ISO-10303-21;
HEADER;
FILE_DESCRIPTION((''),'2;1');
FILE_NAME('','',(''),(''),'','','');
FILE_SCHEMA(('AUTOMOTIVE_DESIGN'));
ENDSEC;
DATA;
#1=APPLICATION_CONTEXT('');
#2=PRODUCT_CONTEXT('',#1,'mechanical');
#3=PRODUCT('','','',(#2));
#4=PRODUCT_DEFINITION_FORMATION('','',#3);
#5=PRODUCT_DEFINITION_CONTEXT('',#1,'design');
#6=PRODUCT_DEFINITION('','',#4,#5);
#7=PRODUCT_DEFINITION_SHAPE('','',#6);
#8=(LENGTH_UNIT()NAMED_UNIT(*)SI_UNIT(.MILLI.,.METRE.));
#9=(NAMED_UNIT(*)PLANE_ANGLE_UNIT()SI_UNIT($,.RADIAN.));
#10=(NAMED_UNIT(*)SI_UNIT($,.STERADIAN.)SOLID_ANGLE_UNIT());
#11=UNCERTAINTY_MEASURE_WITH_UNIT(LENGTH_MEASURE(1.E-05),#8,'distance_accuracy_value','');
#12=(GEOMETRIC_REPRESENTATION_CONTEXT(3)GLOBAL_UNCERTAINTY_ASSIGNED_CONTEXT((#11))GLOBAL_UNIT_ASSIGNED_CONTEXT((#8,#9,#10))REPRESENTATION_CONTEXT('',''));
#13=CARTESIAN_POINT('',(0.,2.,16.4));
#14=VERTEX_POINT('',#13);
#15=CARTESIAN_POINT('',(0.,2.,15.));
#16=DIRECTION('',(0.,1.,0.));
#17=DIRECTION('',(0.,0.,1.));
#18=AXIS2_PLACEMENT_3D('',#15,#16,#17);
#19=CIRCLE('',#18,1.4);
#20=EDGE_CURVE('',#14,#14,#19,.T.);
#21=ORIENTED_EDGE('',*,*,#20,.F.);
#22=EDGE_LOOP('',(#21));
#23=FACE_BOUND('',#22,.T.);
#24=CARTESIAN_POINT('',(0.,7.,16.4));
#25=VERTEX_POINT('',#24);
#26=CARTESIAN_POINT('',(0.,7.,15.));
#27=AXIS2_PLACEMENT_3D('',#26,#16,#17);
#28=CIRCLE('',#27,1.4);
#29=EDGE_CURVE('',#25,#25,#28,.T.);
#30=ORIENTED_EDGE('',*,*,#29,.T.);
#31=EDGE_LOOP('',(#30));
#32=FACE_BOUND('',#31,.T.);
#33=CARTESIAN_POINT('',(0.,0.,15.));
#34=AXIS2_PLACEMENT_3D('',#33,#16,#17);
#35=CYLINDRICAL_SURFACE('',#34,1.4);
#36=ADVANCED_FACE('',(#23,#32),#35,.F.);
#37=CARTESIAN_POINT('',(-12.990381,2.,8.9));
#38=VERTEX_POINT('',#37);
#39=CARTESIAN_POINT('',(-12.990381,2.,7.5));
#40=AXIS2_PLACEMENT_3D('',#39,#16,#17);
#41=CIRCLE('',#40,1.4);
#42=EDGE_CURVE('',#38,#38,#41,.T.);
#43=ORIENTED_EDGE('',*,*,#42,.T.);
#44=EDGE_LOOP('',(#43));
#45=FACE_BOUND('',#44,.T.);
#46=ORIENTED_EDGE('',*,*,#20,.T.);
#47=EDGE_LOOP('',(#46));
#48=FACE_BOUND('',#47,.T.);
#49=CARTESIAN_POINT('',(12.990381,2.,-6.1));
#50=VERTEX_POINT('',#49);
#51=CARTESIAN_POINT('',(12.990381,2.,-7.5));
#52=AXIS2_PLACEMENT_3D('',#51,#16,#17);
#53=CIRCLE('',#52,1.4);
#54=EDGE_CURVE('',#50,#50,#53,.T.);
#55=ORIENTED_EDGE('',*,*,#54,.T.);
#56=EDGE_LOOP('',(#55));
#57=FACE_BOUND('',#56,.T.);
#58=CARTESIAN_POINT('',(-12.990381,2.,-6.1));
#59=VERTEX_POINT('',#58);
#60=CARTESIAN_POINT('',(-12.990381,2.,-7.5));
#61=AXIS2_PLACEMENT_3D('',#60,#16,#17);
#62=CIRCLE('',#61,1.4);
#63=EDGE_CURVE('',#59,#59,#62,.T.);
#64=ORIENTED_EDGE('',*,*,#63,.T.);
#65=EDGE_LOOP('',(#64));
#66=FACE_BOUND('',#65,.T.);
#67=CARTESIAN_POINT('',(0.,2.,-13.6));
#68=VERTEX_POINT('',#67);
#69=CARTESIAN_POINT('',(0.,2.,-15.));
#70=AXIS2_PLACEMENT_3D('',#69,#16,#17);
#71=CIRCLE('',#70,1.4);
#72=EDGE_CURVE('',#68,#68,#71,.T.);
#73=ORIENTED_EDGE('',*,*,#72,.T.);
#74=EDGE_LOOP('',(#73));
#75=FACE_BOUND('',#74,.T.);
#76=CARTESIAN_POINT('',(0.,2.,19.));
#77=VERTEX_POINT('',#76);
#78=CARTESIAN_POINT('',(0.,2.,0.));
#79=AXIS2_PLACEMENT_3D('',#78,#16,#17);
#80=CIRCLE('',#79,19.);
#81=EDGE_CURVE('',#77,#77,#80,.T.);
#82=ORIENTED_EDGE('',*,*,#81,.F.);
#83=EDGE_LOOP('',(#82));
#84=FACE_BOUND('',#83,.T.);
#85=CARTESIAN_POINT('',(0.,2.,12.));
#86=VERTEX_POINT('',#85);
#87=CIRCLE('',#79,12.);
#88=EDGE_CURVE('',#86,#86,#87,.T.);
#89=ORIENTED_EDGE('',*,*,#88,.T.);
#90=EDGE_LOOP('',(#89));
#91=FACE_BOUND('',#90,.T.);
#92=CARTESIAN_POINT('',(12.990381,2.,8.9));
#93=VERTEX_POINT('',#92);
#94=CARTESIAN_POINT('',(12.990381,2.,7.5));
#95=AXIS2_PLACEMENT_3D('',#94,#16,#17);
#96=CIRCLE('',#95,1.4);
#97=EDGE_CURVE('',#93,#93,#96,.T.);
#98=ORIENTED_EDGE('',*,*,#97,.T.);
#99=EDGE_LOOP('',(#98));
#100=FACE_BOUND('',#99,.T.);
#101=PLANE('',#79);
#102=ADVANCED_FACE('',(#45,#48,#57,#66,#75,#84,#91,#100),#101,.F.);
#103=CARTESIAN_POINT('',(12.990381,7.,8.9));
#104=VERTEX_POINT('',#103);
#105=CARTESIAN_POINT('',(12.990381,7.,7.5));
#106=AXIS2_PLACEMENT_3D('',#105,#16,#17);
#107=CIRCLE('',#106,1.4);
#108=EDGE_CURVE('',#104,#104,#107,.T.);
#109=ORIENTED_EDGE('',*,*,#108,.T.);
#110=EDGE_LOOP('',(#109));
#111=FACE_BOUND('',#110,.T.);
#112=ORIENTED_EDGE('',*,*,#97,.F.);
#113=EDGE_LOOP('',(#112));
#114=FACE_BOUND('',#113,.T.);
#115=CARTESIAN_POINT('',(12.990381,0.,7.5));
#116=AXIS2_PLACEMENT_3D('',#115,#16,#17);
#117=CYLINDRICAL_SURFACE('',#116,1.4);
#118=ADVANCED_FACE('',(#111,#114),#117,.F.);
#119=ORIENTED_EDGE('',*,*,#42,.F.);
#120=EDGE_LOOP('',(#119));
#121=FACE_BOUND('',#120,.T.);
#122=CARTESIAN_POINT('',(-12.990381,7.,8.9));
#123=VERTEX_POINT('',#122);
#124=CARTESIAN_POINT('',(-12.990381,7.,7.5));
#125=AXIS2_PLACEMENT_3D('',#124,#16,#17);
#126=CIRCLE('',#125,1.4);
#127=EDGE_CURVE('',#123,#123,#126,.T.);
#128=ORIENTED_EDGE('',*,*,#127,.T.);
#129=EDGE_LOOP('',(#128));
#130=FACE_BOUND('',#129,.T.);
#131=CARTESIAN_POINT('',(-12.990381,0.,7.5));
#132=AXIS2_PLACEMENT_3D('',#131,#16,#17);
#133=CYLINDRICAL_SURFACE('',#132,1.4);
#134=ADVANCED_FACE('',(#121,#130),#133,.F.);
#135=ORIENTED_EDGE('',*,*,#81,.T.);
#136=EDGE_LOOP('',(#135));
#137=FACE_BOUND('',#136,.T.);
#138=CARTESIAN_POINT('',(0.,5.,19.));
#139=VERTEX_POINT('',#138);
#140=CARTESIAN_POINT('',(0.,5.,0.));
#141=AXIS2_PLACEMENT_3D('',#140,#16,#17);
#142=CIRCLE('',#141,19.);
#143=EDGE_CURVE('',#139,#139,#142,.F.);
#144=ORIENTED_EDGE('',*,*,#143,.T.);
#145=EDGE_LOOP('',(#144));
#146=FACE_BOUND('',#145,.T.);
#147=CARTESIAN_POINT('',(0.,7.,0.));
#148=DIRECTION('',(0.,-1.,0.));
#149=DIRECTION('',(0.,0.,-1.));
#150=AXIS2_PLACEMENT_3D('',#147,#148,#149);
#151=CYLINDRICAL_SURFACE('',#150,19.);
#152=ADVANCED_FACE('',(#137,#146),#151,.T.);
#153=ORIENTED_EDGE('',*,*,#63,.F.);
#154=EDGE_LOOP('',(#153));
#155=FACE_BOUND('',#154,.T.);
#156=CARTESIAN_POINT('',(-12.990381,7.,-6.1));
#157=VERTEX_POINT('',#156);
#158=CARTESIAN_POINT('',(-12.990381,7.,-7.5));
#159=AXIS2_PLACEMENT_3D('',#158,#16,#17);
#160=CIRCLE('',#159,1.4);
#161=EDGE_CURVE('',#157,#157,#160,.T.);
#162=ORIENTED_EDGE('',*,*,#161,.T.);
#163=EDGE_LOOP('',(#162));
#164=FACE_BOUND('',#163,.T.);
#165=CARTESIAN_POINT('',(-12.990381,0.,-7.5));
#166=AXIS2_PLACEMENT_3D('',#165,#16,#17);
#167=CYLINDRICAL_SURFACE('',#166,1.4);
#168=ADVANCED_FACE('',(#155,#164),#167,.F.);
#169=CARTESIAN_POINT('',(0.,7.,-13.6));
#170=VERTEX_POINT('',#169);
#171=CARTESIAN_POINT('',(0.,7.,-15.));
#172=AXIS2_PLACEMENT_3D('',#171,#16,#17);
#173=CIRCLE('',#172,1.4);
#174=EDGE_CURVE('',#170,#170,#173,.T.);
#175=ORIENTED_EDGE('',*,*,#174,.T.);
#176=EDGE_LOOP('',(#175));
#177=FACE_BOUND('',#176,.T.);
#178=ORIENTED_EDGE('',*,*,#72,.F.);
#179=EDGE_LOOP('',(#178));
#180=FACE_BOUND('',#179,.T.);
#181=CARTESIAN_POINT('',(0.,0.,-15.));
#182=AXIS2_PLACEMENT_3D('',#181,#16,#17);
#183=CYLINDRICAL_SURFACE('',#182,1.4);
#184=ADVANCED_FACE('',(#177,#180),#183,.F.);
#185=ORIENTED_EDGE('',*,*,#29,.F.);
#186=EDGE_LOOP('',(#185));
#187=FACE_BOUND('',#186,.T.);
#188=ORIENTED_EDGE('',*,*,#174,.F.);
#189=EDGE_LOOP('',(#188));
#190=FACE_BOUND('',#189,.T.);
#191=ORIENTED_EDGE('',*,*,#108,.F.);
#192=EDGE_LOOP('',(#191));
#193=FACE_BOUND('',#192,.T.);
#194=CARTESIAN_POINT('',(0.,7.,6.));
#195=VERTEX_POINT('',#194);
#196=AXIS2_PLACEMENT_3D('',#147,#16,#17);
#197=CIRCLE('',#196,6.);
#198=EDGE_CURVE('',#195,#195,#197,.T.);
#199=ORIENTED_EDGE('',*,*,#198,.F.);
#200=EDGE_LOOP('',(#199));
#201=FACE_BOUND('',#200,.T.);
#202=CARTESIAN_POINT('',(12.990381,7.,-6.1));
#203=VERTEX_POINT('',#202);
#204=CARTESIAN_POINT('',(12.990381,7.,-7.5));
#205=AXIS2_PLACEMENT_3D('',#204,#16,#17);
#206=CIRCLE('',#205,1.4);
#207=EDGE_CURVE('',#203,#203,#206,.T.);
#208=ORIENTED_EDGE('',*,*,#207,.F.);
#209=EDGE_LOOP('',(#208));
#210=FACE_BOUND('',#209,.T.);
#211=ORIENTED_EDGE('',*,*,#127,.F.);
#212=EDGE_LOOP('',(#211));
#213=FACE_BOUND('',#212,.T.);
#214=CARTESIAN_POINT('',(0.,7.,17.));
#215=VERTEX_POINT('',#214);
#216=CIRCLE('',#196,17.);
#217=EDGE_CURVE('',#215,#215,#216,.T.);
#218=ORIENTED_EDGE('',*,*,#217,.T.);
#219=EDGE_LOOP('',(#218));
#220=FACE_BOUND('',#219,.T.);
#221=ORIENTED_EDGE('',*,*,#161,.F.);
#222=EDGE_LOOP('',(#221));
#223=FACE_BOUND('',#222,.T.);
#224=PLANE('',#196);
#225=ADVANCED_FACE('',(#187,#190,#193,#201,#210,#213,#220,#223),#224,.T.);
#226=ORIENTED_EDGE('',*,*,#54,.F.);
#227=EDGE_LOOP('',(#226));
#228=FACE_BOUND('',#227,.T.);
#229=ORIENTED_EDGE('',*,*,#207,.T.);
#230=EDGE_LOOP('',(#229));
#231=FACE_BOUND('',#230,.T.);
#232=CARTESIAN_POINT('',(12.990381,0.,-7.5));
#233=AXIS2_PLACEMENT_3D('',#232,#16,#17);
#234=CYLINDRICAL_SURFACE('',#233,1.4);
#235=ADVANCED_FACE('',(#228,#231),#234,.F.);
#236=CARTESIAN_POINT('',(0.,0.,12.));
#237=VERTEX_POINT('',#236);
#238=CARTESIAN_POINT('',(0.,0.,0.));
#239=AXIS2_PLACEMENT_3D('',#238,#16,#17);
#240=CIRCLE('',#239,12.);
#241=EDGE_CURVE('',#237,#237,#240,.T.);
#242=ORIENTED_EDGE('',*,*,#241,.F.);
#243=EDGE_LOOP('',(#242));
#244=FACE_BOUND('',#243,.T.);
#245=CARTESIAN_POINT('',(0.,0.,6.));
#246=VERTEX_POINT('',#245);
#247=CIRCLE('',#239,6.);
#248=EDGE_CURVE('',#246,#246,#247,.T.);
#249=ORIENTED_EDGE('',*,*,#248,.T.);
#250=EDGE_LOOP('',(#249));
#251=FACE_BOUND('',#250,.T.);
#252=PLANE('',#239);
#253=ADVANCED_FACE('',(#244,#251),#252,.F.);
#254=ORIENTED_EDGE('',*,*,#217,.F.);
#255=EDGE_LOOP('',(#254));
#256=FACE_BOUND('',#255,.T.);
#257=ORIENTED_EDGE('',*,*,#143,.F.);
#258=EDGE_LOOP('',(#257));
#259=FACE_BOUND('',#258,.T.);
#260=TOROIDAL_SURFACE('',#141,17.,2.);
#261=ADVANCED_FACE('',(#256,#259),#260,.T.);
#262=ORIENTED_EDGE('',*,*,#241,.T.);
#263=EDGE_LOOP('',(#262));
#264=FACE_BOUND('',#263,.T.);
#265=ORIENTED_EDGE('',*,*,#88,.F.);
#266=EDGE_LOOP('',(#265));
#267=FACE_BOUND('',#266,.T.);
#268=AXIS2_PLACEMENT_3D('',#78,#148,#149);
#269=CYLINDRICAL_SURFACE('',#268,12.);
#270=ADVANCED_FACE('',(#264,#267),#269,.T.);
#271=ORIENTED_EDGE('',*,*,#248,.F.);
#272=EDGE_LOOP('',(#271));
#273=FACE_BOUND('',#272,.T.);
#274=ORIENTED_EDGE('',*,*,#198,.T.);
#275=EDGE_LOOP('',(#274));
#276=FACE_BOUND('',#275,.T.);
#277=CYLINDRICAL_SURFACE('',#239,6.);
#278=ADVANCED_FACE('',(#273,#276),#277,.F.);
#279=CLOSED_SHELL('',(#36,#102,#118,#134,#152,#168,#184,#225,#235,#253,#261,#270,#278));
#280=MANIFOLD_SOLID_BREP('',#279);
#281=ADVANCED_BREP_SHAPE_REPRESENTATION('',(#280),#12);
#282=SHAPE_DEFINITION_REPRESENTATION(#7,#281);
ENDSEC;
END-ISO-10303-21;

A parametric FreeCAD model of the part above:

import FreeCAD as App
import Part
import Sketcher


def edges_at(feature, points):
    """Names of the edges that pass closest to the given points."""
    edges = feature.Shape.Edges
    near = lambda p: min(range(len(edges)), key=lambda i: edges[i].distToShape(Part.Vertex(*p))[0])
    return sorted({f"Edge{near(p) + 1}" for p in points})

doc = App.newDocument("Part")
body = doc.addObject("PartDesign::Body", "Body")

# Sketch on XZ plane
sketch1 = body.newObject("Sketcher::SketchObject", "Sketch")
sketch1.AttachmentSupport = (doc.getObject("XZ_Plane"), [""])
sketch1.MapMode = "FlatFace"
sketch1.addGeometry(Part.Circle(App.Vector(0, 0, 0), App.Vector(0, 0, 1), 12), False)
sketch1.addConstraint([
    Sketcher.Constraint("Coincident", 0, 3, -1, 1),
    Sketcher.Constraint("Diameter", 0, 24.0),
])
pad1 = body.newObject("PartDesign::Pad", "Pad")
pad1.Profile = sketch1
pad1.Length = 2
pad1.Reversed = True

# Sketch on XZ plane
sketch2 = body.newObject("Sketcher::SketchObject", "Sketch001")
sketch2.AttachmentSupport = (doc.getObject("XZ_Plane"), [""])
sketch2.MapMode = "FlatFace"
sketch2.AttachmentOffset = App.Placement(App.Vector(0, 0, -2), App.Rotation())
sketch2.addGeometry(Part.Circle(App.Vector(0, 0, 0), App.Vector(0, 0, 1), 19), False)
sketch2.addConstraint([
    Sketcher.Constraint("Coincident", 0, 3, -1, 1),
    Sketcher.Constraint("Diameter", 0, 38.0),
])
pad2 = body.newObject("PartDesign::Pad", "Pad001")
pad2.Profile = sketch2
pad2.Length = 5
pad2.Reversed = True
doc.recompute()

fillet = body.newObject("PartDesign::Fillet", "Fillet")
fillet.Base = (pad2, edges_at(pad2, [(0, 7, -19)]))
fillet.Radius = 2

# Sketch on XZ plane
sketch3 = body.newObject("Sketcher::SketchObject", "Sketch002")
sketch3.AttachmentSupport = (doc.getObject("XZ_Plane"), [""])
sketch3.MapMode = "FlatFace"
sketch3.AttachmentOffset = App.Placement(App.Vector(0, 0, -7), App.Rotation())
sketch3.addGeometry([
    Part.Circle(App.Vector(0, 0, 0), App.Vector(0, 0, 1), 6),  # 0
    Part.Circle(App.Vector(0, -15, 0), App.Vector(0, 0, 1), 1.4),  # 1
    Part.Circle(App.Vector(13, -7.5, 0), App.Vector(0, 0, 1), 1.4),  # 2
    Part.Circle(App.Vector(13, 7.5, 0), App.Vector(0, 0, 1), 1.4),  # 3
    Part.Circle(App.Vector(0, 15, 0), App.Vector(0, 0, 1), 1.4),  # 4
    Part.Circle(App.Vector(-13, 7.5, 0), App.Vector(0, 0, 1), 1.4),  # 5
    Part.Circle(App.Vector(-13, -7.5, 0), App.Vector(0, 0, 1), 1.4),  # 6
], False)
sketch3.addConstraint([
    Sketcher.Constraint("Coincident", 0, 3, -1, 1),
    Sketcher.Constraint("Equal", 1, 2),
    Sketcher.Constraint("Equal", 2, 3),
    Sketcher.Constraint("Equal", 3, 4),
    Sketcher.Constraint("Equal", 4, 5),
    Sketcher.Constraint("Equal", 5, 6),
    Sketcher.Constraint("Symmetric", 1, 3, 4, 3, -1, 1),
    Sketcher.Constraint("Symmetric", 2, 3, 5, 3, -1, 1),
    Sketcher.Constraint("Symmetric", 3, 3, 6, 3, -1, 1),
    Sketcher.Constraint("Symmetric", 3, 3, 5, 3, -2),
    Sketcher.Constraint("PointOnObject", 1, 3, -2),
    Sketcher.Constraint("Diameter", 0, 12.0),
    Sketcher.Constraint("Diameter", 1, 2.8),
    Sketcher.Constraint("DistanceY", 1, 3, -1, 1, 15.0),
    Sketcher.Constraint("DistanceY", 2, 3, 3, 3, 15.0),
    Sketcher.Constraint("DistanceX", -1, 1, 2, 3, 12.990381),
])
pocket1 = body.newObject("PartDesign::Pocket", "Pocket")
pocket1.Profile = sketch3
pocket1.Type = "ThroughAll"
pocket1.Reversed = True

doc.recompute()
